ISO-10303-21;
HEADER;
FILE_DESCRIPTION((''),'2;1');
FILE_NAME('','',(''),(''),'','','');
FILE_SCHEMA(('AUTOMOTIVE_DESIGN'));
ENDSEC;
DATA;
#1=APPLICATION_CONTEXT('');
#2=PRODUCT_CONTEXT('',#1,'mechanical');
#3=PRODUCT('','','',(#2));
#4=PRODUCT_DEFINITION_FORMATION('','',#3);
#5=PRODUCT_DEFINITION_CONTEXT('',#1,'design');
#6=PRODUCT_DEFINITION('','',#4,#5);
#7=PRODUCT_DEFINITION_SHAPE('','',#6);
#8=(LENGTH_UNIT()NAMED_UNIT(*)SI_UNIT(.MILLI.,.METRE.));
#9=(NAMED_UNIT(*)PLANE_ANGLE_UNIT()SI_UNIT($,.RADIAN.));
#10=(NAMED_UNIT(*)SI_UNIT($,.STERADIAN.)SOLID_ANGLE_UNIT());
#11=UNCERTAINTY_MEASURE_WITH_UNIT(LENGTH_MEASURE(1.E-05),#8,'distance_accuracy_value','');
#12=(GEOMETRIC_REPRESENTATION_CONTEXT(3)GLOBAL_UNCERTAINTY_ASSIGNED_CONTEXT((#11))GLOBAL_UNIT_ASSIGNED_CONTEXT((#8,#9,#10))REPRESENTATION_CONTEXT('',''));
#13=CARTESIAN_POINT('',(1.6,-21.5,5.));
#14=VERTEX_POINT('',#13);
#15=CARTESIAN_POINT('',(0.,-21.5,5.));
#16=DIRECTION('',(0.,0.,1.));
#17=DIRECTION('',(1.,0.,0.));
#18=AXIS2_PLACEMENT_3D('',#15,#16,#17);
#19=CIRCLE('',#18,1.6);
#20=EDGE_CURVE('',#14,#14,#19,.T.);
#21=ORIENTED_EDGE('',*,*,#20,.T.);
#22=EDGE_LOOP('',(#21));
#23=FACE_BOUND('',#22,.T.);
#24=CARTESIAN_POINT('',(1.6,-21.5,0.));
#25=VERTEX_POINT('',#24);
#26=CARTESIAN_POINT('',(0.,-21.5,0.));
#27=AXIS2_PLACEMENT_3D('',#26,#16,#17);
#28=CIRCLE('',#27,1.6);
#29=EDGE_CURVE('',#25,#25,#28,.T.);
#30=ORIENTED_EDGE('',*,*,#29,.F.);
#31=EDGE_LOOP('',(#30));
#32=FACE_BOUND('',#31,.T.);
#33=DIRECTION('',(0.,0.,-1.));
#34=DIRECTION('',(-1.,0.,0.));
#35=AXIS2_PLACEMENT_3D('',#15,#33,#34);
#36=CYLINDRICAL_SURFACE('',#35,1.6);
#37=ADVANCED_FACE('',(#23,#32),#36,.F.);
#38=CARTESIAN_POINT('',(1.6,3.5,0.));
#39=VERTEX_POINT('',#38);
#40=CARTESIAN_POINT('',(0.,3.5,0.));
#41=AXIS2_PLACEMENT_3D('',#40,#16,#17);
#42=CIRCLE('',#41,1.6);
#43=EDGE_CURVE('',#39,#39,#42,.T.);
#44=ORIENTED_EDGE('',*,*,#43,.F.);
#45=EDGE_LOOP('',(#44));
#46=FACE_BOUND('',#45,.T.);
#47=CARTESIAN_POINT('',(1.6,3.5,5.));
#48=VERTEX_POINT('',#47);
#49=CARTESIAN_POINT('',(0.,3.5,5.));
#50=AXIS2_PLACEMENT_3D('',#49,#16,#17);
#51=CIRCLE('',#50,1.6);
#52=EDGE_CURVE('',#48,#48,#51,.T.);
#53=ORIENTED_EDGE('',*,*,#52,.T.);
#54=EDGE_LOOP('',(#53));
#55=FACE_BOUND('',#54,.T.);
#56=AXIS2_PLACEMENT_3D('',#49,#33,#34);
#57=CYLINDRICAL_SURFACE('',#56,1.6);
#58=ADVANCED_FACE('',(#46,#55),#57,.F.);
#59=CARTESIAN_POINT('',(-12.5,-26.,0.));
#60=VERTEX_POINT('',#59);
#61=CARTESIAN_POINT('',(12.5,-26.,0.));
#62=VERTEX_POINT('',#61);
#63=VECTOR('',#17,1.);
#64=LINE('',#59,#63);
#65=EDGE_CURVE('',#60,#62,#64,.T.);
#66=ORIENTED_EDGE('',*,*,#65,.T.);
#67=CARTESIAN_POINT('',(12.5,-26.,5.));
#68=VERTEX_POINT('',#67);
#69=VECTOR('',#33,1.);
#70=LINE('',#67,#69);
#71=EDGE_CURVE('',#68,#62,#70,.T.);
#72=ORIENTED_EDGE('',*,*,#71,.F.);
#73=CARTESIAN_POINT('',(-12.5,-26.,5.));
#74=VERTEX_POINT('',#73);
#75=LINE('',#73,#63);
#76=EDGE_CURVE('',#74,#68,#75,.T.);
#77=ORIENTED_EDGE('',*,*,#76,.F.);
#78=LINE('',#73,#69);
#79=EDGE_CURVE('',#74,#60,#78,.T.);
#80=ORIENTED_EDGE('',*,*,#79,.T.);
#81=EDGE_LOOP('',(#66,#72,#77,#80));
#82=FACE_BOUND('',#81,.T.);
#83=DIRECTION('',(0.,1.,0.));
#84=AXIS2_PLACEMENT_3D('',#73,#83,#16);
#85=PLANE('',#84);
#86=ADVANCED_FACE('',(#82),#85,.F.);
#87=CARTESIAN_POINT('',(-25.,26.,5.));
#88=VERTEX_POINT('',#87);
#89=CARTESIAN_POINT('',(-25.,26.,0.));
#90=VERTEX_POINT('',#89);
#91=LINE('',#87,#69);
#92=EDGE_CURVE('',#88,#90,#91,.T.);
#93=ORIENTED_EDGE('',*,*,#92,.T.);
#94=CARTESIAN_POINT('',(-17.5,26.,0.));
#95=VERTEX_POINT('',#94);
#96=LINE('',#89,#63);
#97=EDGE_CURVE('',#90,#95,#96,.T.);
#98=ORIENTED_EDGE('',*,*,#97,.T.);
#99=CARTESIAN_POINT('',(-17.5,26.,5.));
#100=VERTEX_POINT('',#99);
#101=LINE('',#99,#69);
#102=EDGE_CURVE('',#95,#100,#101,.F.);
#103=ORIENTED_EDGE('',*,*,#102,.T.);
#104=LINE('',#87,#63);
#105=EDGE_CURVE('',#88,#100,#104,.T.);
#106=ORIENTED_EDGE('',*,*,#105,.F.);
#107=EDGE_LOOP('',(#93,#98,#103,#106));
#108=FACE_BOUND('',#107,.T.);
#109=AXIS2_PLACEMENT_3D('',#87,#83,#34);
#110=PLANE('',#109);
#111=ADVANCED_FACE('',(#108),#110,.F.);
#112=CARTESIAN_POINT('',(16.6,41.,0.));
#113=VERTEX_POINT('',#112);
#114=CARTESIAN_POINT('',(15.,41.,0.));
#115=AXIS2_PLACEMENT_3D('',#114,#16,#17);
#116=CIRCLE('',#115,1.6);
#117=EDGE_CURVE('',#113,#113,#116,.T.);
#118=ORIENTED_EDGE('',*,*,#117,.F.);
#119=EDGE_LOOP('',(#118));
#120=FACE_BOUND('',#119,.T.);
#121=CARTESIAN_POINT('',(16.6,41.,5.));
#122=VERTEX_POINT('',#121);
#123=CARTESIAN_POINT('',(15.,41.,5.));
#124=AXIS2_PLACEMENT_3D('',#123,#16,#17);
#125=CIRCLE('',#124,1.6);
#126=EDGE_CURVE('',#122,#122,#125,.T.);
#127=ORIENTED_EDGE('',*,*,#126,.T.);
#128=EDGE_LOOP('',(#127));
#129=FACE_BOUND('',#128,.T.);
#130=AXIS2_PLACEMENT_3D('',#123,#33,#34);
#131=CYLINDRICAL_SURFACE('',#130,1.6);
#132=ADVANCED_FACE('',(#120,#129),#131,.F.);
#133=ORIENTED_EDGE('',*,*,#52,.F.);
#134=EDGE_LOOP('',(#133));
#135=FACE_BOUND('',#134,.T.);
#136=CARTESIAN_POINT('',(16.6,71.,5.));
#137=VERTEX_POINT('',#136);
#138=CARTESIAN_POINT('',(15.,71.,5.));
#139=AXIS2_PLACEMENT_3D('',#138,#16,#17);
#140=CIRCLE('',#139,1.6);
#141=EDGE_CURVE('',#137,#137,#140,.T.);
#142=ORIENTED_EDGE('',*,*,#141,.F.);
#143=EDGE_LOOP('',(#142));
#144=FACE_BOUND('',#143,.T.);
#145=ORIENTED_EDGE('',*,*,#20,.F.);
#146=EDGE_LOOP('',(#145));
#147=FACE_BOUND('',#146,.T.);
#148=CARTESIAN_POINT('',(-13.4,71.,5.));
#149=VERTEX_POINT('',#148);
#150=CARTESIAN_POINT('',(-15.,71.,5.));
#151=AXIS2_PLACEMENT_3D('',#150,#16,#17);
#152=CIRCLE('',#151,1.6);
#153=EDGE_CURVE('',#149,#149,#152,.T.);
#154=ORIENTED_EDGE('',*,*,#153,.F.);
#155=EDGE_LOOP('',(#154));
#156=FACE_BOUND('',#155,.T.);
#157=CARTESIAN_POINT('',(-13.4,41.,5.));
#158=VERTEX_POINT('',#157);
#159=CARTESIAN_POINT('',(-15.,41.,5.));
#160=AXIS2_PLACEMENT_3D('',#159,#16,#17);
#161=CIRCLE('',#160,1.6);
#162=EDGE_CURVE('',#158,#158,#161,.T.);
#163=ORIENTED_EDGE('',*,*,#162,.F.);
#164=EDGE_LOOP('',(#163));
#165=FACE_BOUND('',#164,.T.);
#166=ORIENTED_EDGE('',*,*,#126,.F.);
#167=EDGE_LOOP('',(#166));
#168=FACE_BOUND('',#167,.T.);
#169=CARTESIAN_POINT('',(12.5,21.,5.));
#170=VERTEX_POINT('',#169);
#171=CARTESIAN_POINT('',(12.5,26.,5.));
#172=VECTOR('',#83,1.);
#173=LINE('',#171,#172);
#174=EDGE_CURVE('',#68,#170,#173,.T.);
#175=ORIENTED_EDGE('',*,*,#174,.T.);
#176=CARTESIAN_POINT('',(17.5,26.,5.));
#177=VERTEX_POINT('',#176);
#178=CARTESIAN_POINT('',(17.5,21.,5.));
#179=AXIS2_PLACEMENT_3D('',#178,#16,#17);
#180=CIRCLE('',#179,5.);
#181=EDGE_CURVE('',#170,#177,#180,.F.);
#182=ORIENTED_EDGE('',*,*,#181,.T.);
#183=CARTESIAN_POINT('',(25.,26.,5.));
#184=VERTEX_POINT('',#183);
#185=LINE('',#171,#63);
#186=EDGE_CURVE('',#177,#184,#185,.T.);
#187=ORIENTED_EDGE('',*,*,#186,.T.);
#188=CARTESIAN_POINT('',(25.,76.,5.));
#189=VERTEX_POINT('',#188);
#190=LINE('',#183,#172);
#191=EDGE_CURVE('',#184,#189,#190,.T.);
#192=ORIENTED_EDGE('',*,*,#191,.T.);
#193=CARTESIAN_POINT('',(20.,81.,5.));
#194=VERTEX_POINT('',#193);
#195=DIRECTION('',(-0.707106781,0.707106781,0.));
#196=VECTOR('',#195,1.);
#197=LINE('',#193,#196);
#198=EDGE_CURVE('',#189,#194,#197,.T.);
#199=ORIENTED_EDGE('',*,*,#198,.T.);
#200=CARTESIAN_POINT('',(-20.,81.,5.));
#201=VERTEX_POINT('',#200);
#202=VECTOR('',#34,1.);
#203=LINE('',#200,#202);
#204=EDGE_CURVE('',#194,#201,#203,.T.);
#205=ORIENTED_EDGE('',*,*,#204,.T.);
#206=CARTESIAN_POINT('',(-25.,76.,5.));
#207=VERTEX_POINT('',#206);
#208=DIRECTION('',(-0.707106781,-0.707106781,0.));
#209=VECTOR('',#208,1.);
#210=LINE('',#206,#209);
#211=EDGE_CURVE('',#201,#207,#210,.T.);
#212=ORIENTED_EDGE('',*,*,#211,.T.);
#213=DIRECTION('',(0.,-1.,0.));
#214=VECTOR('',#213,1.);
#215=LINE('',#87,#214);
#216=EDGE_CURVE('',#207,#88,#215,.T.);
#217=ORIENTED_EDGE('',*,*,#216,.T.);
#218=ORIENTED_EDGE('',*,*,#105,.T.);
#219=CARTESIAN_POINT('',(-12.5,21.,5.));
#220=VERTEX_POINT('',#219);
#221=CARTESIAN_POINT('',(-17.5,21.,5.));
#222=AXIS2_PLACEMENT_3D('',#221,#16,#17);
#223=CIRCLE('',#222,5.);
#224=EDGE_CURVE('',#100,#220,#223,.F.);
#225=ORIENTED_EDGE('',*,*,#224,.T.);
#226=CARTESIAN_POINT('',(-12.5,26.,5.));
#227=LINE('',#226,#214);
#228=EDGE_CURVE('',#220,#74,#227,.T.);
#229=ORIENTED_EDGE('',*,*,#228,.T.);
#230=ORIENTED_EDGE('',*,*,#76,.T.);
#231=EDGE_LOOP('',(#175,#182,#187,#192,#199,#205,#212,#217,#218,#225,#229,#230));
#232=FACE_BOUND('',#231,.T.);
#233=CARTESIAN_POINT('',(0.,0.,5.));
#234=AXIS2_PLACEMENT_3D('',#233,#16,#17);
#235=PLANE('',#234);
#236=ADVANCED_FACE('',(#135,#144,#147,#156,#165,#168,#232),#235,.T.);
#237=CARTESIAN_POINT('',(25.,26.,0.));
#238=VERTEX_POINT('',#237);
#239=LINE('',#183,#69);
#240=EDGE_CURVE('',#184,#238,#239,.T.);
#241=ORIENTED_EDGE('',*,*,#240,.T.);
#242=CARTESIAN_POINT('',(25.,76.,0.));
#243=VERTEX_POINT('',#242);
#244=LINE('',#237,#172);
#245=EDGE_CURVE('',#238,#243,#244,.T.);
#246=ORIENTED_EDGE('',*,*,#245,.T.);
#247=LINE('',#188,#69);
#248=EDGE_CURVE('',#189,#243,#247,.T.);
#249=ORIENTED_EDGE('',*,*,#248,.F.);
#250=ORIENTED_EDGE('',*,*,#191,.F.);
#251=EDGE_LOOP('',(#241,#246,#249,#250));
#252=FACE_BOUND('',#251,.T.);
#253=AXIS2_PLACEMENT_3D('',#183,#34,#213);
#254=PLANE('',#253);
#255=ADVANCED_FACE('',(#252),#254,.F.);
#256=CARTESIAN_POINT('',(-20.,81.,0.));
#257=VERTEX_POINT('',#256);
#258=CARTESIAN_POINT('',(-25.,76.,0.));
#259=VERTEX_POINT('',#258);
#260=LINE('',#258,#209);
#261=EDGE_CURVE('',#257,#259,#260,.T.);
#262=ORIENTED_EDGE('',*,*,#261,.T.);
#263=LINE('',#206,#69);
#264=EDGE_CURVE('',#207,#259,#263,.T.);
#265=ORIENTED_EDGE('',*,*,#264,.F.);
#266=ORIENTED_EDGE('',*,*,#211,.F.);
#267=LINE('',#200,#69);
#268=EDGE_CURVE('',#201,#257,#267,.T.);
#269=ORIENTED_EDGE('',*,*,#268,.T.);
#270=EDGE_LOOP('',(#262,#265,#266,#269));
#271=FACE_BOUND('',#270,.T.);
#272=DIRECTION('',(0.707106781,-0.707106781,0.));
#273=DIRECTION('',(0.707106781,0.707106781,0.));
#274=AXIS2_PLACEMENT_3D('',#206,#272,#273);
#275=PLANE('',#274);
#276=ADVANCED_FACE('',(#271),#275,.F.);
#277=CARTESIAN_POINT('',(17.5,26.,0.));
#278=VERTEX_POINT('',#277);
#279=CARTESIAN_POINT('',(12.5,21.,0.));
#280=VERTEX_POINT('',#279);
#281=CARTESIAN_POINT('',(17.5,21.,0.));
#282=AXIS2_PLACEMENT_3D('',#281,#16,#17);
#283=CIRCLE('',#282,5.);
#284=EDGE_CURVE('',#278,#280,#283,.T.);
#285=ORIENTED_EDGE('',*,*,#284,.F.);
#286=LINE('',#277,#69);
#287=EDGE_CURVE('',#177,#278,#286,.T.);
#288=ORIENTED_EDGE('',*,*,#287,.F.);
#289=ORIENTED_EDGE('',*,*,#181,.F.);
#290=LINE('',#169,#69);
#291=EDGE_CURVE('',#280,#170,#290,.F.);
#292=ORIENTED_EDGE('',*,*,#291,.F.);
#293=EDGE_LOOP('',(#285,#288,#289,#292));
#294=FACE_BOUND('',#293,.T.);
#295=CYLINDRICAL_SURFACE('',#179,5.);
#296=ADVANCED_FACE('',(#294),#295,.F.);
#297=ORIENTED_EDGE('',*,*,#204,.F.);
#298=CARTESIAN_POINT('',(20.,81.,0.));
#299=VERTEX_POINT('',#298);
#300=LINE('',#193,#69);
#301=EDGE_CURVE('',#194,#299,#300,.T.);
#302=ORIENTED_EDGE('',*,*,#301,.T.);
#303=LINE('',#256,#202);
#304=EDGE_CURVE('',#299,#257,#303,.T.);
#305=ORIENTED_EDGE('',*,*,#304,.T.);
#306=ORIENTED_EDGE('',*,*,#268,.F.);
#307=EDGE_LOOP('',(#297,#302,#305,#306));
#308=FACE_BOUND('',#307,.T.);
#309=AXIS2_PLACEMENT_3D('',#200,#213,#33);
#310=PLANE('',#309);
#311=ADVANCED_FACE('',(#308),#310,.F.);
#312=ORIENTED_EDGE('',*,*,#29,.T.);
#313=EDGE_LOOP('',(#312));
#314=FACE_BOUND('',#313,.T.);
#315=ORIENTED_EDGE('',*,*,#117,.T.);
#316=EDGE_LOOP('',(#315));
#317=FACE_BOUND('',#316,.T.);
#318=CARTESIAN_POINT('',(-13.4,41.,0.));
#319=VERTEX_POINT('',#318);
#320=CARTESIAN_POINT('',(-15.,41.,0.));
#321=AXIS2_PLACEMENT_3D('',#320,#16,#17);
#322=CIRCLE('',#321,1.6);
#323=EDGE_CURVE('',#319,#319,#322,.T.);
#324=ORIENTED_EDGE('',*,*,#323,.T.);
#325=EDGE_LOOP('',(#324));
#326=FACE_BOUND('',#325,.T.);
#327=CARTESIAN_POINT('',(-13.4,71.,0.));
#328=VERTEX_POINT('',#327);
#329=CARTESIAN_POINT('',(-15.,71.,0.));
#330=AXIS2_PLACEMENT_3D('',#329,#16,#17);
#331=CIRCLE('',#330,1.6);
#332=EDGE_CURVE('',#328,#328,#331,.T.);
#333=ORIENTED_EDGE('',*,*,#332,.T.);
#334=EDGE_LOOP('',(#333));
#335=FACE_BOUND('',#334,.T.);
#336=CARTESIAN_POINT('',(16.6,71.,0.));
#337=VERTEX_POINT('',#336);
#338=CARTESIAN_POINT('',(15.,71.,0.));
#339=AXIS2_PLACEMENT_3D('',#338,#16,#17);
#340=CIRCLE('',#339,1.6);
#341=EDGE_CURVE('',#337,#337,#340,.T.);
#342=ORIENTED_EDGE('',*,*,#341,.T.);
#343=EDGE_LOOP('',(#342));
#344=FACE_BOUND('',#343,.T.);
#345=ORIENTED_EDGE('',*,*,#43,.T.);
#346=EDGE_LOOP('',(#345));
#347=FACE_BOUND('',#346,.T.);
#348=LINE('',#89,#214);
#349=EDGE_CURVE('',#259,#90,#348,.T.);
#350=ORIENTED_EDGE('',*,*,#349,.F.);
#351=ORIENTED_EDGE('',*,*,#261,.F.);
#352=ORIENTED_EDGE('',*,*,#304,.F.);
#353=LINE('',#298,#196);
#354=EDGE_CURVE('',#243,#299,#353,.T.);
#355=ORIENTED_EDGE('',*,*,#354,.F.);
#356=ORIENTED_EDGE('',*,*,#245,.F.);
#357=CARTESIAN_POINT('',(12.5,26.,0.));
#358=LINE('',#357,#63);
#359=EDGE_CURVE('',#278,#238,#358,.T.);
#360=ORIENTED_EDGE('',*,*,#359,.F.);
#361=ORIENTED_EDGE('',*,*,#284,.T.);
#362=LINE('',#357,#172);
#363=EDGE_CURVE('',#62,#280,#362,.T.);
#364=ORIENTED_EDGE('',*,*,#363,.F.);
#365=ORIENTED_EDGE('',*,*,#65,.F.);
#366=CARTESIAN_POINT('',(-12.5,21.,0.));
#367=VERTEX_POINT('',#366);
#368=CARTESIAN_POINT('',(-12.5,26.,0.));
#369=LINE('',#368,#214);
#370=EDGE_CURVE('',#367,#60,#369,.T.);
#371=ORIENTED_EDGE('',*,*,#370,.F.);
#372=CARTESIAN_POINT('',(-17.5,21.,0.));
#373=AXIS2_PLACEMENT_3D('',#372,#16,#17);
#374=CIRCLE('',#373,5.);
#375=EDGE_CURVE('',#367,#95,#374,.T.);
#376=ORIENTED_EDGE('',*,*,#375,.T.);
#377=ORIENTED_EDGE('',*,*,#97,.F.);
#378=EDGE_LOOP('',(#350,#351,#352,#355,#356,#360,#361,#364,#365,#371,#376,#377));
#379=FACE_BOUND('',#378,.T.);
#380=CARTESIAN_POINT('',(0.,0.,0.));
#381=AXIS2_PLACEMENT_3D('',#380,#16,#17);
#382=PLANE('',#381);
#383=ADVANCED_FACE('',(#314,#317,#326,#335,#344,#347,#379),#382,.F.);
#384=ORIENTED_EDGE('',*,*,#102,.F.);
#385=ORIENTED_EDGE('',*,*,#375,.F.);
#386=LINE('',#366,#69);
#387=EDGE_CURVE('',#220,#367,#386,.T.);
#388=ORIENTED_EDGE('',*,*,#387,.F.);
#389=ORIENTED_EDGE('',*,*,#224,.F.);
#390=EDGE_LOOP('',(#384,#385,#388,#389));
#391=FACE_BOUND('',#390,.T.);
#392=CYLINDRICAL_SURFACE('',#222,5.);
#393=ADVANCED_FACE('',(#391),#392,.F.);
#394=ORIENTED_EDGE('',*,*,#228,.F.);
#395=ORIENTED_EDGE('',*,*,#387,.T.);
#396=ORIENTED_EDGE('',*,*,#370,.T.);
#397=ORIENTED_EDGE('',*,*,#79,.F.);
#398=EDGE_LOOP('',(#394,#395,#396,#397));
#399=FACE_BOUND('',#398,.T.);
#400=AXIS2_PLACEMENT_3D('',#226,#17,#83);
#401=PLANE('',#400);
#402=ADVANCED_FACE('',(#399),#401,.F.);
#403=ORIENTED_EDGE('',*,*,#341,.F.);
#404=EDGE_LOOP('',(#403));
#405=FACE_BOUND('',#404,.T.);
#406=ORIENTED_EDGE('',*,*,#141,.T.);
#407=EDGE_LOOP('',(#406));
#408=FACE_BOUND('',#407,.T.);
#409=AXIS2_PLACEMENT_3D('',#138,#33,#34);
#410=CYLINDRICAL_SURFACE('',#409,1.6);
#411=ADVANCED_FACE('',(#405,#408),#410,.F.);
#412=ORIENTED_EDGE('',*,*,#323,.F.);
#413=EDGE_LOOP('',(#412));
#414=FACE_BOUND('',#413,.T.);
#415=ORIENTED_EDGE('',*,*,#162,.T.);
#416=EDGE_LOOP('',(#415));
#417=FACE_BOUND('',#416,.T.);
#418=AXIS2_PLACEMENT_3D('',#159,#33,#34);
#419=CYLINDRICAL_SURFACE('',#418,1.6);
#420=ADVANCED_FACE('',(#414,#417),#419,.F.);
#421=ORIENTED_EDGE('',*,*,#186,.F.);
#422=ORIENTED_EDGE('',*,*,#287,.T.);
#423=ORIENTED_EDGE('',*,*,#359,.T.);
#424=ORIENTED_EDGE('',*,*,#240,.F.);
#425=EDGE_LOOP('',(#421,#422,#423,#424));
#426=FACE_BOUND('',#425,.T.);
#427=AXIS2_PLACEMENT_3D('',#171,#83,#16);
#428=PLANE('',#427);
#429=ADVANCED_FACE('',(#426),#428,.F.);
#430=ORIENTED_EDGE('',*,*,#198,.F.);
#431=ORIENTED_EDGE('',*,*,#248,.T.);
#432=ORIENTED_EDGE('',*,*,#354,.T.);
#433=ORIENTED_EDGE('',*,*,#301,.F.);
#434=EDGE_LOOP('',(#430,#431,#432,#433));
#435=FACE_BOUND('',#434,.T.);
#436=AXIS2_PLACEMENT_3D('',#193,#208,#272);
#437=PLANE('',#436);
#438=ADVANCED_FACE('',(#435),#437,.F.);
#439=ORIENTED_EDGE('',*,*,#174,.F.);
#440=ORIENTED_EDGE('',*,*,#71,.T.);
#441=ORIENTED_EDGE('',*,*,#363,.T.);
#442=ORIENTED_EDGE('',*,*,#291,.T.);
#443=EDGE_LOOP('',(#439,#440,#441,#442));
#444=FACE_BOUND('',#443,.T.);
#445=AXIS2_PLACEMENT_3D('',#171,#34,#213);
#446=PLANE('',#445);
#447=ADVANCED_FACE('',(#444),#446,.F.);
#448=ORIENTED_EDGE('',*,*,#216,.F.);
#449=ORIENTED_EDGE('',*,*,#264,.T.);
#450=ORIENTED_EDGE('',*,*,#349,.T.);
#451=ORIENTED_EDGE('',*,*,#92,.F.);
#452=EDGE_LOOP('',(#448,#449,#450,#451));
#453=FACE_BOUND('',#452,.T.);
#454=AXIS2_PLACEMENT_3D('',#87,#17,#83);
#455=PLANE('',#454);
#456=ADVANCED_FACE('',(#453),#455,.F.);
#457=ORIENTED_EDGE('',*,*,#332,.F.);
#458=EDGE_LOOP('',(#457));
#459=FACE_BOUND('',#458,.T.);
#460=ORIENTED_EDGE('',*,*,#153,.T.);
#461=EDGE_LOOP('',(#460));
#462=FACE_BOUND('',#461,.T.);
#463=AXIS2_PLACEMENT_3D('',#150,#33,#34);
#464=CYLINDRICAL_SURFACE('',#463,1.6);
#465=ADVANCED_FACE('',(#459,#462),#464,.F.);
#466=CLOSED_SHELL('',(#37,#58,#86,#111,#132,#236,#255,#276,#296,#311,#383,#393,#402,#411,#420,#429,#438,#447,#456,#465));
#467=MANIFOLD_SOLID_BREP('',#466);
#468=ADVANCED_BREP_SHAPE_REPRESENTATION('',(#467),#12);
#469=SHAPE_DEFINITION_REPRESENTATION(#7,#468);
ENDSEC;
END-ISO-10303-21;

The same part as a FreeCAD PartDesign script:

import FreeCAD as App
import Part
import Sketcher
from FreeCAD import Vector


def edges_at(feature, points):
    """Names of the edges that pass closest to the given points."""
    edges = feature.Shape.Edges
    near = lambda p: min(range(len(edges)), key=lambda i: edges[i].distToShape(Part.Vertex(*p))[0])
    return sorted({f"Edge{near(p) + 1}" for p in points})


def add_polygon(sketch, points):
    """Adds a closed chain of lines whose ends are joined by coincident constraints."""
    first, n = sketch.GeometryCount, len(points)
    for a, b in zip(points, points[1:] + points[:1]):
        sketch.addGeometry(Part.LineSegment(App.Vector(*a, 0), App.Vector(*b, 0)), False)
    for i in range(n):
        sketch.addConstraint(Sketcher.Constraint("Coincident", first + i, 2, first + (i + 1) % n, 1))

doc = App.newDocument("Part")
body = doc.addObject("PartDesign::Body", "Body")

sketch1 = doc.addObject("Sketcher::SketchObject", "Sketch")
body.addObject(sketch1)
sketch1.AttachmentSupport = (doc.XY_Plane, [""])
sketch1.MapMode = "FlatFace"
add_polygon(sketch1, [(-12.5, 26), (-12.5, -26), (12.5, -26), (12.5, 26), (25, 26), (25, 76), (20, 81), (-20, 81), (-25, 76), (-25, 26)])
sketch1.addGeometry(Part.Circle(Vector(0, -21.5, 0), Vector(0, 0, 1), 1.6), False)
sketch1.addGeometry(Part.Circle(Vector(0, 3.5, 0), Vector(0, 0, 1), 1.6), False)
sketch1.addGeometry(Part.Circle(Vector(-15, 41, 0), Vector(0, 0, 1), 1.6), False)
sketch1.addGeometry(Part.Circle(Vector(-15, 71, 0), Vector(0, 0, 1), 1.6), False)
sketch1.addGeometry(Part.Circle(Vector(15, 41, 0), Vector(0, 0, 1), 1.6), False)
sketch1.addGeometry(Part.Circle(Vector(15, 71, 0), Vector(0, 0, 1), 1.6), False)
sketch1.addConstraint(Sketcher.Constraint("Vertical", 0))
sketch1.addConstraint(Sketcher.Constraint("Horizontal", 1))
sketch1.addConstraint(Sketcher.Constraint("Vertical", 2))
sketch1.addConstraint(Sketcher.Constraint("Horizontal", 3))
sketch1.addConstraint(Sketcher.Constraint("Vertical", 4))
sketch1.addConstraint(Sketcher.Constraint("Horizontal", 6))
sketch1.addConstraint(Sketcher.Constraint("Vertical", 8))
sketch1.addConstraint(Sketcher.Constraint("Horizontal", 9))
sketch1.addConstraint(Sketcher.Constraint("Equal", 10, 11))
sketch1.addConstraint(Sketcher.Constraint("Equal", 11, 12))
sketch1.addConstraint(Sketcher.Constraint("Equal", 12, 13))
sketch1.addConstraint(Sketcher.Constraint("Equal", 13, 14))
sketch1.addConstraint(Sketcher.Constraint("Equal", 14, 15))
sketch1.addConstraint(Sketcher.Constraint("Symmetric", 0, 2, 2, 2, -1, 1))
sketch1.addConstraint(Sketcher.Constraint("Symmetric", 12, 3, 14, 3, -2))
sketch1.addConstraint(Sketcher.Constraint("Symmetric", 13, 3, 15, 3, -2))
sketch1.addConstraint(Sketcher.Constraint("Symmetric", 4, 2, 7, 2, -2))
sketch1.addConstraint(Sketcher.Constraint("PointOnObject", 10, 3, -2))
sketch1.addConstraint(Sketcher.Constraint("PointOnObject", 11, 3, -2))
sketch1.addConstraint(Sketcher.Constraint("Perpendicular", 5, 7))
sketch1.addConstraint(Sketcher.Constraint("Horizontal", 3, 2, 8, 2))
sketch1.addConstraint(Sketcher.Constraint("Vertical", 12, 3, 13, 3))
sketch1.addConstraint(Sketcher.Constraint("Equal", 5, 7))
sketch1.addConstraint(Sketcher.Constraint("Diameter", 10, 3.2))
sketch1.addConstraint(Sketcher.Constraint("DistanceX", 1, 1, 1, 2, 25.0))
sketch1.addConstraint(Sketcher.Constraint("DistanceX", 6, 2, 6, 1, 40.0))
sketch1.addConstraint(Sketcher.Constraint("DistanceY", 0, 2, 0, 1, 52.0))
sketch1.addConstraint(Sketcher.Constraint("DistanceY", 4, 1, 4, 2, 50.0))
sketch1.addConstraint(Sketcher.Constraint("DistanceX", 3, 1, 3, 2, 12.5))
sketch1.addConstraint(Sketcher.Constraint("DistanceX", 12, 3, -1, 1, 15.0))
sketch1.addConstraint(Sketcher.Constraint("DistanceY", -1, 1, 12, 3, 41.0))
sketch1.addConstraint(Sketcher.Constraint("DistanceY", -1, 1, 13, 3, 71.0))
sketch1.addConstraint(Sketcher.Constraint("DistanceY", 10, 3, 11, 3, 25.0))
sketch1.addConstraint(Sketcher.Constraint("DistanceY", 10, 3, -1, 1, 21.5))
pad1 = doc.addObject("PartDesign::Pad", "Pad")
body.addObject(pad1)
pad1.Profile = sketch1
pad1.Length = 5
doc.recompute()

fillet = doc.addObject("PartDesign::Fillet", "Fillet")
body.addObject(fillet)
fillet.Base = (pad1, edges_at(pad1, [(-12.5, 26, 2.5), (12.5, 26, 2.5)]))
fillet.Radius = 5

doc.recompute()
